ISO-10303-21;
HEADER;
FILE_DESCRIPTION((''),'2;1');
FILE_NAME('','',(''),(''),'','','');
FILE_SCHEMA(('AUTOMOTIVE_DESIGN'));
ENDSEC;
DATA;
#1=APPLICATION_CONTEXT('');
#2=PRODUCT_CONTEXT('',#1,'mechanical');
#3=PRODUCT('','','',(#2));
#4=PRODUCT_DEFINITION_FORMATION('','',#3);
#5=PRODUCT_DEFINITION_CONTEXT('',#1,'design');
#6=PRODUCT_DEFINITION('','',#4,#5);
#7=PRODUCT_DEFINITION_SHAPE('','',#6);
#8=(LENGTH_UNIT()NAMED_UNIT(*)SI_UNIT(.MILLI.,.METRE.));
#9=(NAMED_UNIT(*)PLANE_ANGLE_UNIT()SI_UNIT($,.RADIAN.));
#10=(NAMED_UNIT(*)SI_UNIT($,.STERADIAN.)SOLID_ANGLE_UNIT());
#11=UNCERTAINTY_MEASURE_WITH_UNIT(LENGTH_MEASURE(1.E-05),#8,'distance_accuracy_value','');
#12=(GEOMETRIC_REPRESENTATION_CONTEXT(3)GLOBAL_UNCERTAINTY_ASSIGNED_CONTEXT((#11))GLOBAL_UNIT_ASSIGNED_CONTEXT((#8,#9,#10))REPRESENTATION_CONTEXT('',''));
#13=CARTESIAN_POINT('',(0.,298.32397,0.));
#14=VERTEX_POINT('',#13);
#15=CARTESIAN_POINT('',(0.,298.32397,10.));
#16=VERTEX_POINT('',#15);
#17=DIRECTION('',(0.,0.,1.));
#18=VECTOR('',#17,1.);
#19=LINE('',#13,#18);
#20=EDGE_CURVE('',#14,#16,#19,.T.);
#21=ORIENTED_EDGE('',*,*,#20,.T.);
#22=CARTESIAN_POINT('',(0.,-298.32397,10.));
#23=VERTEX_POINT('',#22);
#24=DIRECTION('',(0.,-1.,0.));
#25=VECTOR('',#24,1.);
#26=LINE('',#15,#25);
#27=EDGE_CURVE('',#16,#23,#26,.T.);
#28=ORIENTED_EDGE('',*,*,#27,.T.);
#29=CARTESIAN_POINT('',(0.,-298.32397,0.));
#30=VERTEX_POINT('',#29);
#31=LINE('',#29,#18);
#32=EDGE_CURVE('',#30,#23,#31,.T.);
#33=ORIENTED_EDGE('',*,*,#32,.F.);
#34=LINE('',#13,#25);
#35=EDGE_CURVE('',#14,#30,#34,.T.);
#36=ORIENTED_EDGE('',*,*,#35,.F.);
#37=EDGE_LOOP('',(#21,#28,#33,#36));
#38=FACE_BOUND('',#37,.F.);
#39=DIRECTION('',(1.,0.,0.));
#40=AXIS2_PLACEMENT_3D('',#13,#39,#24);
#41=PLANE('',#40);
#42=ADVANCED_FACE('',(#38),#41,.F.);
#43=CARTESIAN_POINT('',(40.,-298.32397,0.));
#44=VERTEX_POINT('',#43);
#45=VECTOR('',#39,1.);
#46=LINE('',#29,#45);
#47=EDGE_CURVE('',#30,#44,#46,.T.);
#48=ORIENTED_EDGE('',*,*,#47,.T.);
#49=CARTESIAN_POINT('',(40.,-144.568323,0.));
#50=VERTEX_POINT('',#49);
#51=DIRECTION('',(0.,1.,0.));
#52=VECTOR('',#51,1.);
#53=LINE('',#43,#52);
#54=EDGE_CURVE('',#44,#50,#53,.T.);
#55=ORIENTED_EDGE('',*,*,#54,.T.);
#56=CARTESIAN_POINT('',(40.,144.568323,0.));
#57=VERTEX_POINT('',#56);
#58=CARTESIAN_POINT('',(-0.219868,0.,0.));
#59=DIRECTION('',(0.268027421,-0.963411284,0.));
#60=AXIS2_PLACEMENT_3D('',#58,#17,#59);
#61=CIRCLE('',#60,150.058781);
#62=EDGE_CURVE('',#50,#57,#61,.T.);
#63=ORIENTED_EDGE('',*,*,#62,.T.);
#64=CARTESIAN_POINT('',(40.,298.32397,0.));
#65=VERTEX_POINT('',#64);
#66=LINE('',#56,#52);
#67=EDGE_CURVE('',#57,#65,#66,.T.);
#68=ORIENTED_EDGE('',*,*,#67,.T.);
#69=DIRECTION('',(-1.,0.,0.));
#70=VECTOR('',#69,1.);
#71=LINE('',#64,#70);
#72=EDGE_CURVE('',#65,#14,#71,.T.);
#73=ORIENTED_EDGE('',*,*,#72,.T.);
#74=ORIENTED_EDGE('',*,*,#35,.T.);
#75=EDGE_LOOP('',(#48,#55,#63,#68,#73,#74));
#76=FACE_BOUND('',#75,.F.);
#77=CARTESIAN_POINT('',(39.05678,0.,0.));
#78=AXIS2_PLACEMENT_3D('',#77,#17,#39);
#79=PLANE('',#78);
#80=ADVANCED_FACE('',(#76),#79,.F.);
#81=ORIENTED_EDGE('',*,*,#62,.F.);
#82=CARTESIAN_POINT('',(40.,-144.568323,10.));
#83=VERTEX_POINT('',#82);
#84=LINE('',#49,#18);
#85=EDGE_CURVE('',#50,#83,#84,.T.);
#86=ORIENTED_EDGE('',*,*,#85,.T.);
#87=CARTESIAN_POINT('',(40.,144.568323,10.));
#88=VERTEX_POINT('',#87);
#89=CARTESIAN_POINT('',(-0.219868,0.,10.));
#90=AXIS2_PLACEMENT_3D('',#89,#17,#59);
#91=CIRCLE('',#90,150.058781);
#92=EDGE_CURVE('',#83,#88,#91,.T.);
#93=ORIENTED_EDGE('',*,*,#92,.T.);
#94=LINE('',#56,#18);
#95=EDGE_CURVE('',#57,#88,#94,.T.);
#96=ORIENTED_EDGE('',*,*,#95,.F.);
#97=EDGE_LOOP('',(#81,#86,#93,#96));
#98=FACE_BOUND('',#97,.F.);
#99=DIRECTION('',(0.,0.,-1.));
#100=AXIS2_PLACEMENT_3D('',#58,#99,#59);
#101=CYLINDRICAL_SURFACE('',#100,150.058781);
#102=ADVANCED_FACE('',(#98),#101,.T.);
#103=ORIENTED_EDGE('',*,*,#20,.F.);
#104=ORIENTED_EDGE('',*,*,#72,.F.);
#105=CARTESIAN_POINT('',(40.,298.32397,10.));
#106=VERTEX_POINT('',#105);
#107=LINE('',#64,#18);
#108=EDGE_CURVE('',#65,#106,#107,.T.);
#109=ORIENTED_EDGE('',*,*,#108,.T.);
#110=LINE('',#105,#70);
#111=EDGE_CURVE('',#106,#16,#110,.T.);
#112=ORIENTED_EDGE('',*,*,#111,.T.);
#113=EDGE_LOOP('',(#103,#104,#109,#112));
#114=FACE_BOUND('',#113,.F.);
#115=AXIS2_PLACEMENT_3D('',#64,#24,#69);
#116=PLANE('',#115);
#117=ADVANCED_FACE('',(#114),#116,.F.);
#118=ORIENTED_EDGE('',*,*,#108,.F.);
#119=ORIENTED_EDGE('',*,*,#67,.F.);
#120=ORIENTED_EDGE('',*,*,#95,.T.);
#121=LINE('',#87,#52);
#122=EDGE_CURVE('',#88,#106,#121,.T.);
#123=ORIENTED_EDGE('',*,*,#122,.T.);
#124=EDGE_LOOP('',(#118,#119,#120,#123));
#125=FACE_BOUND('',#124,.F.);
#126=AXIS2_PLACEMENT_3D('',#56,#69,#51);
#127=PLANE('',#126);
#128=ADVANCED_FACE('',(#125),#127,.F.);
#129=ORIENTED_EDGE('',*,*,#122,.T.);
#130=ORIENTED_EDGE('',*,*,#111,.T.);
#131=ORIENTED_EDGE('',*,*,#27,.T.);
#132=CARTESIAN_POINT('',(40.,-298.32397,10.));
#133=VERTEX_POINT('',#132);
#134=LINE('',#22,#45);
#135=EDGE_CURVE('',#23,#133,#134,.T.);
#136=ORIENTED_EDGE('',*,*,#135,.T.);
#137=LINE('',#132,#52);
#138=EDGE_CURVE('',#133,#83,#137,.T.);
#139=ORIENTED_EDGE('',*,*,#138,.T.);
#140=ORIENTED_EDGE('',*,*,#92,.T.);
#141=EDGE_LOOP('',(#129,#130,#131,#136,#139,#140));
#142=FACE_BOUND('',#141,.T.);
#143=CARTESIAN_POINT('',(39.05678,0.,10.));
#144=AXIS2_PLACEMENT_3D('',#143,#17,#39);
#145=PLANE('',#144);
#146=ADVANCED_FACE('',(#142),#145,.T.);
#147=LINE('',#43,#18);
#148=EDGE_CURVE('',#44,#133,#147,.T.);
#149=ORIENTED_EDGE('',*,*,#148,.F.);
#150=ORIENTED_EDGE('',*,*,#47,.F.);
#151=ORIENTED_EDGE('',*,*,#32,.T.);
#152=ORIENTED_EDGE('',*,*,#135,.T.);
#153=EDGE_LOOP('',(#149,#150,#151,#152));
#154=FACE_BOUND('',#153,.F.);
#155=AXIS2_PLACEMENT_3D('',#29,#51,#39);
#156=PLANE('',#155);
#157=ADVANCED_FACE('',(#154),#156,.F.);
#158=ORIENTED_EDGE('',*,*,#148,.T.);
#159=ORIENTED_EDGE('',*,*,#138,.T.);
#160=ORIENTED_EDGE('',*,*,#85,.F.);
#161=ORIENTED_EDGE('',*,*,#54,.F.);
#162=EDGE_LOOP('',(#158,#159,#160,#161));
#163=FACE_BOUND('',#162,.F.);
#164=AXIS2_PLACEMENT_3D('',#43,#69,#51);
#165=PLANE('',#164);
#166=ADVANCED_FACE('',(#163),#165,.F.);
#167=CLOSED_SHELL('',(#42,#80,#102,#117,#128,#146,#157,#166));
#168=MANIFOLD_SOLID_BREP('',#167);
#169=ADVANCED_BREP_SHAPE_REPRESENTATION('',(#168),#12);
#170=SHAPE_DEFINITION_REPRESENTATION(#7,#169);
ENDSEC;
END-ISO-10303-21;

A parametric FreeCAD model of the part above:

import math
import FreeCAD as App
import Part
import Sketcher

doc = App.newDocument("Part")
params = doc.addObject("Spreadsheet::Sheet", "Params")
for row, (alias, value) in enumerate([
    ("sketch1_width", "40 mm"),
    ("pad1_length", "10 mm"),
], start=1):
    params.set(f"A{row}", alias)
    params.set(f"B{row}", "=" + value)
    params.setAlias(f"B{row}", alias)

body = doc.addObject("PartDesign::Body", "Body")

# Sketch on XY plane
sketch1 = doc.addObject("Sketcher::SketchObject", "Sketch")
body.addObject(sketch1)
sketch1.AttachmentSupport = (doc.XY_Plane, [""])
sketch1.MapMode = "FlatFace"
sketch1.addGeometry(Part.ArcOfCircle(Part.Circle(App.Vector(0, 0, 0), App.Vector(0, 0, 1), 150), math.radians(-74), math.radians(74)), False)
sketch1.addGeometry(Part.LineSegment(App.Vector(40, 145, 0), App.Vector(40, 298, 0)), False)
sketch1.addGeometry(Part.LineSegment(App.Vector(40, 298, 0), App.Vector(0, 298, 0)), False)
sketch1.addGeometry(Part.LineSegment(App.Vector(0, 298, 0), App.Vector(0, -298, 0)), False)
sketch1.addGeometry(Part.LineSegment(App.Vector(0, -298, 0), App.Vector(40, -298, 0)), False)
sketch1.addGeometry(Part.LineSegment(App.Vector(40, -298, 0), App.Vector(40, -145, 0)), False)
sketch1.addConstraint(Sketcher.Constraint("Coincident", 0, 2, 1, 1))
sketch1.addConstraint(Sketcher.Constraint("Coincident", 1, 2, 2, 1))
sketch1.addConstraint(Sketcher.Constraint("Coincident", 2, 2, 3, 1))
sketch1.addConstraint(Sketcher.Constraint("Coincident", 3, 2, 4, 1))
sketch1.addConstraint(Sketcher.Constraint("Coincident", 4, 2, 5, 1))
sketch1.addConstraint(Sketcher.Constraint("Coincident", 5, 2, 0, 1))
sketch1.addConstraint(Sketcher.Constraint("Vertical", 1))
sketch1.addConstraint(Sketcher.Constraint("Horizontal", 2))
sketch1.addConstraint(Sketcher.Constraint("Vertical", 3))
sketch1.addConstraint(Sketcher.Constraint("Horizontal", 4))
sketch1.addConstraint(Sketcher.Constraint("Vertical", 5))
sketch1.addConstraint(Sketcher.Constraint("Symmetric", 2, 2, 3, 2, -1, 1))
sketch1.addConstraint(Sketcher.Constraint("Symmetric", 0, 2, 5, 2, -1))
sketch1.addConstraint(Sketcher.Constraint("DistanceX", 2, 2, 2, 1, 40.0))
sketch1.addConstraint(Sketcher.Constraint("Radius", 0, 150.058781))
sketch1.addConstraint(Sketcher.Constraint("DistanceY", 3, 2, 3, 1, 596.64794))
sketch1.addConstraint(Sketcher.Constraint("DistanceY", 1, 1, 1, 2, 153.755647))
sketch1.setExpression("Constraints[13]", "Params.sketch1_width")
pad1 = doc.addObject("PartDesign::Pad", "Pad")
body.addObject(pad1)
pad1.Profile = sketch1
pad1.setExpression("Length", "Params.pad1_length")

doc.recompute()
